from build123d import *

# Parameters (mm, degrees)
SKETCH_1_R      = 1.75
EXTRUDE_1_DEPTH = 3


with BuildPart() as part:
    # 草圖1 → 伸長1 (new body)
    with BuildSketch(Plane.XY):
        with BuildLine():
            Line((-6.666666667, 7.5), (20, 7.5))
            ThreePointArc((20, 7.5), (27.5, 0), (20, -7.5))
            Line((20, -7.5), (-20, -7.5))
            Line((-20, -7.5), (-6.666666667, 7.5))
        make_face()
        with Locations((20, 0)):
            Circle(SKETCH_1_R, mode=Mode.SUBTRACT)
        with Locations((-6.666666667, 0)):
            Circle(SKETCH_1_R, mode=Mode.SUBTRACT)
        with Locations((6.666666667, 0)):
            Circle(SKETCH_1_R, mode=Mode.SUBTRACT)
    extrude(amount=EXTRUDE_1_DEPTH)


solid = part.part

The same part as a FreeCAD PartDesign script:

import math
import FreeCAD as App
import Part
import Sketcher
from FreeCAD import Vector
Q = App.Units.Quantity

doc = App.newDocument("Part")
params = doc.addObject("Spreadsheet::Sheet", "Params")
for row, (alias, value) in enumerate([
    ("sketch1_diameter", "3.5 mm"),
    ("sketch1_radius", "7.5 mm"),
    ("sketch1_width", "40 mm"),
    ("pad1_length", "3 mm"),
], start=1):
    params.set(f"A{row}", alias)
    params.set(f"B{row}", "=" + value)
    params.setAlias(f"B{row}", alias)

body = doc.addObject("PartDesign::Body", "Body")

sketch1 = body.newObject("Sketcher::SketchObject", "Sketch")
sketch1.AttachmentSupport = (doc.getObject("XY_Plane"), [""])
sketch1.MapMode = "FlatFace"
sketch1.addGeometry([
    Part.LineSegment(Vector(20, 7.5, 0), Vector(-6.7, 7.5, 0)),
    Part.LineSegment(Vector(-6.7, 7.5, 0), Vector(-20, -7.5, 0)),
    Part.LineSegment(Vector(-20, -7.5, 0), Vector(20, -7.5, 0)),
    Part.ArcOfCircle(Part.Circle(Vector(20, 0, 0), Vector(0, 0, 1), 7.5), math.radians(-90), math.radians(90)),
    Part.Circle(Vector(20, 0, 0), Vector(0, 0, 1), 1.8),
    Part.Circle(Vector(6.7, 0, 0), Vector(0, 0, 1), 1.8),
    Part.Circle(Vector(-6.7, 0, 0), Vector(0, 0, 1), 1.8),
], False)
sketch1.addConstraint([
    Sketcher.Constraint("Coincident", 0, 2, 1, 1),
    Sketcher.Constraint("Coincident", 1, 2, 2, 1),
    Sketcher.Constraint("Tangent", 2, 2, 3, 1),
    Sketcher.Constraint("Tangent", 3, 2, 0, 1),
    Sketcher.Constraint("Horizontal", 0),
    Sketcher.Constraint("Horizontal", 2),
    Sketcher.Constraint("Coincident", 4, 3, 3, 3),
    Sketcher.Constraint("Equal", 4, 5),
    Sketcher.Constraint("Equal", 5, 6),
    Sketcher.Constraint("Symmetric", 5, 3, 6, 3, -1, 1),
    Sketcher.Constraint("Symmetric", 1, 2, 3, 2, -1, 1),
    Sketcher.Constraint("PointOnObject", 5, 3, -1),
    Sketcher.Constraint("Vertical", 6, 3, 0, 2),
    Sketcher.Constraint("Diameter", 4, Q("3.5 mm")),
    Sketcher.Constraint("Radius", 3, Q("7.5 mm")),
    Sketcher.Constraint("DistanceX", 2, 1, 2, 2, Q("40 mm")),
    Sketcher.Constraint("DistanceX", 0, 2, 0, 1, Q("26.666667 mm")),
])
sketch1.setExpression("Constraints[13]", "Params.sketch1_diameter")
sketch1.setExpression("Constraints[14]", "Params.sketch1_radius")
sketch1.setExpression("Constraints[15]", "Params.sketch1_width")
pad1 = body.newObject("PartDesign::Pad", "Pad")
pad1.Profile = sketch1
pad1.setExpression("Length", "Params.pad1_length")

doc.recompute()
